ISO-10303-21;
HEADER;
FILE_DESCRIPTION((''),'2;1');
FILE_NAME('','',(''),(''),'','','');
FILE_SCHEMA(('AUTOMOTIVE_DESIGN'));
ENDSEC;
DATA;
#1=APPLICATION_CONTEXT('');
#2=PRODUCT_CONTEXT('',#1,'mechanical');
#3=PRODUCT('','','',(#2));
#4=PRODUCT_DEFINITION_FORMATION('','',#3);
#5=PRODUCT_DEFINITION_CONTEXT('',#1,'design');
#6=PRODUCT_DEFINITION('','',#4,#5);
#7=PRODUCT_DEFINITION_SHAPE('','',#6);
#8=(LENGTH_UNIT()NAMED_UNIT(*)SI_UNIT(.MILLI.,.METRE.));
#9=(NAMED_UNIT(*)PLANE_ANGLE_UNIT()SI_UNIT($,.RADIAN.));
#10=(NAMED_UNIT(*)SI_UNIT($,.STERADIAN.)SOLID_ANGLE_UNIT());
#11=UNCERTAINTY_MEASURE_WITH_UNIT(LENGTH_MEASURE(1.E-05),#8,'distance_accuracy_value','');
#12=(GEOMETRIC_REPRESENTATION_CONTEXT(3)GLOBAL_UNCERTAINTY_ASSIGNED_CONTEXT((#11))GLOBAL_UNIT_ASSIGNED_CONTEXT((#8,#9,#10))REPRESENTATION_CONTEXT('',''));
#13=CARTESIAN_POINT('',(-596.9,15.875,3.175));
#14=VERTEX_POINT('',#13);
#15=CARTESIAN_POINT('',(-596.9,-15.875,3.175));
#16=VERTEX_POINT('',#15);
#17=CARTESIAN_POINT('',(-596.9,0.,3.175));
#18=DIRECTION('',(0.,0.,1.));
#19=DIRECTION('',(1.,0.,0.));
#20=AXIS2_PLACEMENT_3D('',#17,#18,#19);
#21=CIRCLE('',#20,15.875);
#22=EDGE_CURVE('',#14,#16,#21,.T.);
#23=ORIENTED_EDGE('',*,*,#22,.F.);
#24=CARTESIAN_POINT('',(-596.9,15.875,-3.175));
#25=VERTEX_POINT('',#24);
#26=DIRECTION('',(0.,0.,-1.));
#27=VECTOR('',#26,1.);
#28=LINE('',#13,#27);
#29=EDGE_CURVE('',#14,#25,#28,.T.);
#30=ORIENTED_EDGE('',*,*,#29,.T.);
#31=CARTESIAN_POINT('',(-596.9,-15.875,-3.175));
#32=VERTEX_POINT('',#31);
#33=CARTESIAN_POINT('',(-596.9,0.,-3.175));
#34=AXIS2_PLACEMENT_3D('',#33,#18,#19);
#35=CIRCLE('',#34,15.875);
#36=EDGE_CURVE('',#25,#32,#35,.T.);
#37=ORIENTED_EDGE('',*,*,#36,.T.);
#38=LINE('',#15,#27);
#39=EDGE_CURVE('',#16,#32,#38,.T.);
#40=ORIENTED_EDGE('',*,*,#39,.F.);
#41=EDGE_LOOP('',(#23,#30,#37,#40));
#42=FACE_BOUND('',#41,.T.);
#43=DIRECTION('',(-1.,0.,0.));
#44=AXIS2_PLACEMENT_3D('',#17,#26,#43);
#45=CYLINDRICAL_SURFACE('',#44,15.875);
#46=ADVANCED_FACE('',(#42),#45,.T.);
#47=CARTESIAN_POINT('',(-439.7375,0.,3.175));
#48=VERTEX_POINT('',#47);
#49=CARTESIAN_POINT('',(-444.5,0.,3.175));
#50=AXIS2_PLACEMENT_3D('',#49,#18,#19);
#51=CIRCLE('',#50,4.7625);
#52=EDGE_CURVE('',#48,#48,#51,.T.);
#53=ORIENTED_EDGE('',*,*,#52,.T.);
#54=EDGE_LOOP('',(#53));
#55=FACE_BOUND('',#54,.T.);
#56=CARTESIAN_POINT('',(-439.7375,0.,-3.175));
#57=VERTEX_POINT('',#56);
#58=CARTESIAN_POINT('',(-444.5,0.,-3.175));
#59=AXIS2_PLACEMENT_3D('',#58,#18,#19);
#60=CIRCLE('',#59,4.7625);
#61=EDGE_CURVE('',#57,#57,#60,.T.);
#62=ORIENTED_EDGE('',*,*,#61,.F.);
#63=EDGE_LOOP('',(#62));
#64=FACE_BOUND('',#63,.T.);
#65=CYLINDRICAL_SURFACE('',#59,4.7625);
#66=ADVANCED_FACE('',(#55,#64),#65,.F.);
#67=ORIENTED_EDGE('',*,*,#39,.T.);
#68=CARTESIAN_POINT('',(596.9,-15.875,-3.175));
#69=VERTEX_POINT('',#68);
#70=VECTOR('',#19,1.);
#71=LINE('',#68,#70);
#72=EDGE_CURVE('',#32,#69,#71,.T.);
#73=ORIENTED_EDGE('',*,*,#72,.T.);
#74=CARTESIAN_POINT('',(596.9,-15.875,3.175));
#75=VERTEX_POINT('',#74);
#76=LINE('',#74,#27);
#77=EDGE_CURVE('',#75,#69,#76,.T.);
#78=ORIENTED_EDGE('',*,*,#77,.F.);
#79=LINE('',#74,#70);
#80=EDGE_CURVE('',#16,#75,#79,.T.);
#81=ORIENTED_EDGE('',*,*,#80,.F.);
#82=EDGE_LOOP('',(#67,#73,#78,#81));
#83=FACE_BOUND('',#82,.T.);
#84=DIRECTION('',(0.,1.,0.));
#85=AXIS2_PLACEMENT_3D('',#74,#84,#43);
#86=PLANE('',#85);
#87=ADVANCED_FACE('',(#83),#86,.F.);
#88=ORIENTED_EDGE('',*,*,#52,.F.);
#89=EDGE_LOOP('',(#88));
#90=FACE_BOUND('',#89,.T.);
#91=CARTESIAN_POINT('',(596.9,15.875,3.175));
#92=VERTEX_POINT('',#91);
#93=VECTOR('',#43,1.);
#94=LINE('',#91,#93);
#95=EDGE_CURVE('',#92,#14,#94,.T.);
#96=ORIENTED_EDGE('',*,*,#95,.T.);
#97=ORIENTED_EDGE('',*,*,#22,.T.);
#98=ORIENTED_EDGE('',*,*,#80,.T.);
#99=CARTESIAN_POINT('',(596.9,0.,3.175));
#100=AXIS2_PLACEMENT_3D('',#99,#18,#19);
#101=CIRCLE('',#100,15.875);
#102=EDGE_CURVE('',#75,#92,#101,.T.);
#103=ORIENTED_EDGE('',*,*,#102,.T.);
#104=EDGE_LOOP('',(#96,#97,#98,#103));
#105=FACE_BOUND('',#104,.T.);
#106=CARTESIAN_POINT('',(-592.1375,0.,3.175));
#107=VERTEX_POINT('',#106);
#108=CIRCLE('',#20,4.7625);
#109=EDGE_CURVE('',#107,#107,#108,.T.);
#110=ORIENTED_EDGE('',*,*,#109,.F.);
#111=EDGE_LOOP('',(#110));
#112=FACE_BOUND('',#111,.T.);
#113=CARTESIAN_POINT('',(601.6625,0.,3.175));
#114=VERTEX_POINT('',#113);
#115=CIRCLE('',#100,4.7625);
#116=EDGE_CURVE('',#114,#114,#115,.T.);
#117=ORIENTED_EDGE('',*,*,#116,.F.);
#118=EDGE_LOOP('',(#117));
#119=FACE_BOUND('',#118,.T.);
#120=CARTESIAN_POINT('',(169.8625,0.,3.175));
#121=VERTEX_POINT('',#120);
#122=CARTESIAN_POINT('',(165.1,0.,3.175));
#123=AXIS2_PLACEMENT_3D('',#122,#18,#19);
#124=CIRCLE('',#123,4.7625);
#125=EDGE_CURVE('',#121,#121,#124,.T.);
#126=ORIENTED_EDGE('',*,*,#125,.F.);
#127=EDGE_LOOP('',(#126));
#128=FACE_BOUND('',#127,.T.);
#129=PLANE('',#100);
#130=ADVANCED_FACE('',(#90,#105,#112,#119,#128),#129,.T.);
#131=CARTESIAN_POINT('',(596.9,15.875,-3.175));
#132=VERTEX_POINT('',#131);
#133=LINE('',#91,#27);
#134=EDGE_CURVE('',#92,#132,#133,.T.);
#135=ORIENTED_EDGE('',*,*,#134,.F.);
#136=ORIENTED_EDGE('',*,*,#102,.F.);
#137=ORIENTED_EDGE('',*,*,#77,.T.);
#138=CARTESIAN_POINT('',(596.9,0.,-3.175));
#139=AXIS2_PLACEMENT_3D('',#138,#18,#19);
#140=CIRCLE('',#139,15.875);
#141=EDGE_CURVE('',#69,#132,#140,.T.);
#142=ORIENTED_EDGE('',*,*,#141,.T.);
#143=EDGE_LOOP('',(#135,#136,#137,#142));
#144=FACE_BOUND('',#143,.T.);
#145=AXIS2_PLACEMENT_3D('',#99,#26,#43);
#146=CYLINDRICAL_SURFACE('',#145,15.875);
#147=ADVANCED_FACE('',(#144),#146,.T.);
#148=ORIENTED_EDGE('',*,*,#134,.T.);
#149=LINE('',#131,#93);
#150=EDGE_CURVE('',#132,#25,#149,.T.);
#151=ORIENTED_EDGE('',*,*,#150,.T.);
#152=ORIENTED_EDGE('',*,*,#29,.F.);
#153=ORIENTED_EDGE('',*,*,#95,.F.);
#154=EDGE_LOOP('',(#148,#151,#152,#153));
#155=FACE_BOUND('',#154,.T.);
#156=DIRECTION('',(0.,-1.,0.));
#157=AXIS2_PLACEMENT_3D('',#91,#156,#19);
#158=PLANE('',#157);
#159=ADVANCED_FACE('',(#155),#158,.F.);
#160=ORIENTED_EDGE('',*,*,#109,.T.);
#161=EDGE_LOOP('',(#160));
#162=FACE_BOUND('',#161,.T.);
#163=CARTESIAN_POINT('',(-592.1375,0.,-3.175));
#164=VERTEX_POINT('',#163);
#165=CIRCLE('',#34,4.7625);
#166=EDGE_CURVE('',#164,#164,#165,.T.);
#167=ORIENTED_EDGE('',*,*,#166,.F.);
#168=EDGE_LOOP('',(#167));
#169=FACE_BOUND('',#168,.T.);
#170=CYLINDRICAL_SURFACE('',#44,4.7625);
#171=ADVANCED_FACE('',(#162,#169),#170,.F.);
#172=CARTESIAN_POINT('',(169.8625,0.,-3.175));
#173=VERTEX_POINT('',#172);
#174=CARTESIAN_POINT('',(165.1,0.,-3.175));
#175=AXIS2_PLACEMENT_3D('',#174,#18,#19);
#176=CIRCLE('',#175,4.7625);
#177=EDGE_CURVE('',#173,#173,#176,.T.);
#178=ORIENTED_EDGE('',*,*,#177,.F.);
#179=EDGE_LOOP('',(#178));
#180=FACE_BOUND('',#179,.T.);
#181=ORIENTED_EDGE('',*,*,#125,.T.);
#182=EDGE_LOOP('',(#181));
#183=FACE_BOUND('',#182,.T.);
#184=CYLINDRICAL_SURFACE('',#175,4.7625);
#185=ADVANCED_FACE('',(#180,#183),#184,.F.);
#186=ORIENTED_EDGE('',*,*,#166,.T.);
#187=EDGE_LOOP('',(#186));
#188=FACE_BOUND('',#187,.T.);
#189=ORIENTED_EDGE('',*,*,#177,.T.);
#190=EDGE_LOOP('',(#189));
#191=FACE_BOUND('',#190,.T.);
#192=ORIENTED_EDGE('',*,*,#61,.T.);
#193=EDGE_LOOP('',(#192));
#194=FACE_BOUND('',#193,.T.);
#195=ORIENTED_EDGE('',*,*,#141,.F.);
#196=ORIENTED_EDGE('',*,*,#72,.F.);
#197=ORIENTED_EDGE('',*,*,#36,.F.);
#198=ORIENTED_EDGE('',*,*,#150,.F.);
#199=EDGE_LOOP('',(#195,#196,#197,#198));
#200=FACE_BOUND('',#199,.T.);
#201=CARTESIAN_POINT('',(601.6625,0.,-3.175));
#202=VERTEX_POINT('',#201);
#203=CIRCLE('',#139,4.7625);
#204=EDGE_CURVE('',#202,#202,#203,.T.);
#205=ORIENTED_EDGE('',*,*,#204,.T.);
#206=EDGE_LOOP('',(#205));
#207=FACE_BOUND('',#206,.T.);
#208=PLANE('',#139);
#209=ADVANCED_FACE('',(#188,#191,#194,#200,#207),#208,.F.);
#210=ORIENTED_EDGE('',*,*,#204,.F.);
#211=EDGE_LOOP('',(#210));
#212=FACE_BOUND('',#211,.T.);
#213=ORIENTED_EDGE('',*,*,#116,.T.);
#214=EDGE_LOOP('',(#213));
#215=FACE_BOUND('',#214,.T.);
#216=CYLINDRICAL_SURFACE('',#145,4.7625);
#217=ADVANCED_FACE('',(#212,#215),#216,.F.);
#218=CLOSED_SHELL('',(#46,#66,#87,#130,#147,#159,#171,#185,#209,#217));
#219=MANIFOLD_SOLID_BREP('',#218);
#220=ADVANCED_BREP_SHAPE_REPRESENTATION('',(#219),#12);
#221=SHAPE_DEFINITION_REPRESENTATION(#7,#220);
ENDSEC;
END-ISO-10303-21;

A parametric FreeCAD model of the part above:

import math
import FreeCAD as App
import Part
import Sketcher

V = App.Vector
Q = App.Units.Quantity

doc = App.newDocument("Part")
body = doc.addObject("PartDesign::Body", "Body")

sketch1 = body.newObject("Sketcher::SketchObject", "Sketch")
sketch1.AttachmentSupport = (doc.getObject("XY_Plane"), [""])
sketch1.MapMode = "FlatFace"
sketch1.addGeometry(Part.LineSegment(V(-596.9, -15.875, 0), V(596.9, -15.875, 0)), False)
sketch1.addGeometry(Part.ArcOfCircle(Part.Circle(V(596.9, 0, 0), V(0, 0, 1), 15.875), math.radians(-90), math.radians(90)), False)
sketch1.addGeometry(Part.LineSegment(V(596.9, 15.875, 0), V(-596.9, 15.875, 0)), False)
sketch1.addGeometry(Part.ArcOfCircle(Part.Circle(V(-596.9, 0, 0), V(0, 0, 1), 15.875), math.radians(90), math.radians(270)), False)
sketch1.addGeometry(Part.Circle(V(596.9, 0, 0), V(0, 0, 1), 4.7625), False)
sketch1.addGeometry(Part.Circle(V(-596.9, 0, 0), V(0, 0, 1), 4.7625), False)
sketch1.addConstraint(Sketcher.Constraint("Tangent", 0, 2, 1, 1))
sketch1.addConstraint(Sketcher.Constraint("Tangent", 1, 2, 2, 1))
sketch1.addConstraint(Sketcher.Constraint("Tangent", 2, 2, 3, 1))
sketch1.addConstraint(Sketcher.Constraint("Tangent", 3, 2, 0, 1))
sketch1.addConstraint(Sketcher.Constraint("Horizontal", 0))
sketch1.addConstraint(Sketcher.Constraint("Horizontal", 2))
sketch1.addConstraint(Sketcher.Constraint("Coincident", 4, 3, 1, 3))
sketch1.addConstraint(Sketcher.Constraint("Coincident", 5, 3, 3, 3))
sketch1.addConstraint(Sketcher.Constraint("Equal", 4, 5))
sketch1.addConstraint(Sketcher.Constraint("Symmetric", 1, 3, 3, 3, -1, 1))
sketch1.addConstraint(Sketcher.Constraint("DistanceX", 0, 1, 0, 2, Q("47 in")))
sketch1.addConstraint(Sketcher.Constraint("Diameter", 4, Q("0.375 in")))
sketch1.addConstraint(Sketcher.Constraint("Radius", 1, Q("0.625 in")))
pad1 = body.newObject("PartDesign::Pad", "Pad")
pad1.Profile = sketch1
pad1.Length = Q("0.25 in")
pad1.Midplane = True

sketch2 = body.newObject("Sketcher::SketchObject", "Sketch001")
sketch2.AttachmentSupport = (doc.getObject("XY_Plane"), [""])
sketch2.MapMode = "FlatFace"
sketch2.AttachmentOffset = App.Placement(V(0, 0, 0.125 * 25.4), App.Rotation())
sketch2.addGeometry(Part.Circle(V(-444.5, 0, 0), V(0, 0, 1), 4.7625), False)
sketch2.addGeometry(Part.Circle(V(165.1, 0, 0), V(0, 0, 1), 4.7625), False)
sketch2.addConstraint(Sketcher.Constraint("Equal", 0, 1))
sketch2.addConstraint(Sketcher.Constraint("PointOnObject", 0, 3, -1))
sketch2.addConstraint(Sketcher.Constraint("PointOnObject", 1, 3, -1))
sketch2.addConstraint(Sketcher.Constraint("Diameter", 0, Q("0.375 in")))
sketch2.addConstraint(Sketcher.Constraint("DistanceX", 0, 3, 1, 3, Q("24 in")))
sketch2.addConstraint(Sketcher.Constraint("DistanceX", 0, 3, -1, 1, Q("17.5 in")))
pocket1 = body.newObject("PartDesign::Pocket", "Pocket")
pocket1.Profile = sketch2
pocket1.Type = "ThroughAll"

doc.recompute()
